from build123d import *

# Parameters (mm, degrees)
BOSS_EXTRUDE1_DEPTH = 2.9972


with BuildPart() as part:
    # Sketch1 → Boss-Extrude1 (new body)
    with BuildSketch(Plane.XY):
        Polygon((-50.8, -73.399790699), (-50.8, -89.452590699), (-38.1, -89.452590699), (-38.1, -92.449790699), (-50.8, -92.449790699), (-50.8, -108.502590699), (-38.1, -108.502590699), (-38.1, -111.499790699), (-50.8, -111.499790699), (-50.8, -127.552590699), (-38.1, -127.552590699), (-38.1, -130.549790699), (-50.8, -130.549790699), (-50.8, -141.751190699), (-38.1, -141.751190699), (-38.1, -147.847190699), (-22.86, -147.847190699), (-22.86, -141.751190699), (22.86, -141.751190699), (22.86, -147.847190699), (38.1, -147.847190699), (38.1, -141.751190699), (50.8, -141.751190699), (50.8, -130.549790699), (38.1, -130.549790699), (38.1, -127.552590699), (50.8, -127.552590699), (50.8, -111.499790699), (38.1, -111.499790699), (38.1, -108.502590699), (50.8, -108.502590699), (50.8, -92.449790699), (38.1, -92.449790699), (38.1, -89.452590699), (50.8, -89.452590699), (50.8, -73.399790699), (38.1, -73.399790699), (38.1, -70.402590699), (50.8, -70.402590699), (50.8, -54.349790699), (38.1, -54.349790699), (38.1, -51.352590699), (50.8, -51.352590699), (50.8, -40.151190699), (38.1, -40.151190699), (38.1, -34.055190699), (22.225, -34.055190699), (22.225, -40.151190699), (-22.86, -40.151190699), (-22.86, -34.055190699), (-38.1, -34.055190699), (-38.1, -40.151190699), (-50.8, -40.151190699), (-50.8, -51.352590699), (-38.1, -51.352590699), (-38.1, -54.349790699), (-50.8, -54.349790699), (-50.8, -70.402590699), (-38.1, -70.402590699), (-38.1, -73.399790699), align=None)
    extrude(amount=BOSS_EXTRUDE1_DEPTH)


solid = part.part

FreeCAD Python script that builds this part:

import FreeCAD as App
import Part
import Sketcher
from FreeCAD import Vector
Q = App.Units.Quantity


def add_polygon(sketch, points):
    """Adds a closed chain of lines whose ends are joined by coincident constraints."""
    first, n = sketch.GeometryCount, len(points)
    for a, b in zip(points, points[1:] + points[:1]):
        sketch.addGeometry(Part.LineSegment(App.Vector(*a, 0), App.Vector(*b, 0)), False)
    for i in range(n):
        sketch.addConstraint(Sketcher.Constraint("Coincident", first + i, 2, first + (i + 1) % n, 1))

doc = App.newDocument("Part")
body = doc.addObject("PartDesign::Body", "Body")

sketch1 = doc.addObject("Sketcher::SketchObject", "Sketch")
body.addObject(sketch1)
sketch1.AttachmentSupport = (doc.XY_Plane, [""])
sketch1.MapMode = "FlatFace"
add_polygon(sketch1, [(-50.8, -73.399791), (-50.8, -89.452591), (-38.1, -89.452591), (-38.1, -92.449791), (-50.8, -92.449791), (-50.8, -108.502591), (-38.1, -108.502591), (-38.1, -111.499791), (-50.8, -111.499791), (-50.8, -127.552591), (-38.1, -127.552591), (-38.1, -130.549791), (-50.8, -130.549791), (-50.8, -141.751191), (-38.1, -141.751191), (-38.1, -147.847191), (-22.86, -147.847191), (-22.86, -141.751191), (22.86, -141.751191), (22.86, -147.847191), (38.1, -147.847191), (38.1, -141.751191), (50.8, -141.751191), (50.8, -130.549791), (38.1, -130.549791), (38.1, -127.552591), (50.8, -127.552591), (50.8, -111.499791), (38.1, -111.499791), (38.1, -108.502591), (50.8, -108.502591), (50.8, -92.449791), (38.1, -92.449791), (38.1, -89.452591), (50.8, -89.452591), (50.8, -73.399791), (38.1, -73.399791), (38.1, -70.402591), (50.8, -70.402591), (50.8, -54.349791), (38.1, -54.349791), (38.1, -51.352591), (50.8, -51.352591), (50.8, -40.151191), (38.1, -40.151191), (38.1, -34.055191), (22.225, -34.055191), (22.225, -40.151191), (-22.86, -40.151191), (-22.86, -34.055191), (-38.1, -34.055191), (-38.1, -40.151191), (-50.8, -40.151191), (-50.8, -51.352591), (-38.1, -51.352591), (-38.1, -54.349791), (-50.8, -54.349791), (-50.8, -70.402591), (-38.1, -70.402591), (-38.1, -73.399791)])
sketch1.addConstraint(Sketcher.Constraint("Vertical", 0))
sketch1.addConstraint(Sketcher.Constraint("Horizontal", 1))
sketch1.addConstraint(Sketcher.Constraint("Vertical", 2))
sketch1.addConstraint(Sketcher.Constraint("Horizontal", 3))
sketch1.addConstraint(Sketcher.Constraint("Vertical", 4))
sketch1.addConstraint(Sketcher.Constraint("Horizontal", 5))
sketch1.addConstraint(Sketcher.Constraint("Vertical", 6))
sketch1.addConstraint(Sketcher.Constraint("Horizontal", 7))
sketch1.addConstraint(Sketcher.Constraint("Vertical", 8))
sketch1.addConstraint(Sketcher.Constraint("Horizontal", 9))
sketch1.addConstraint(Sketcher.Constraint("Vertical", 10))
sketch1.addConstraint(Sketcher.Constraint("Horizontal", 11))
sketch1.addConstraint(Sketcher.Constraint("Vertical", 12))
sketch1.addConstraint(Sketcher.Constraint("Horizontal", 13))
sketch1.addConstraint(Sketcher.Constraint("Vertical", 14))
sketch1.addConstraint(Sketcher.Constraint("Horizontal", 15))
sketch1.addConstraint(Sketcher.Constraint("Vertical", 16))
sketch1.addConstraint(Sketcher.Constraint("Horizontal", 17))
sketch1.addConstraint(Sketcher.Constraint("Vertical", 18))
sketch1.addConstraint(Sketcher.Constraint("Horizontal", 19))
sketch1.addConstraint(Sketcher.Constraint("Vertical", 20))
sketch1.addConstraint(Sketcher.Constraint("Horizontal", 21))
sketch1.addConstraint(Sketcher.Constraint("Vertical", 22))
sketch1.addConstraint(Sketcher.Constraint("Horizontal", 23))
sketch1.addConstraint(Sketcher.Constraint("Vertical", 24))
sketch1.addConstraint(Sketcher.Constraint("Horizontal", 25))
sketch1.addConstraint(Sketcher.Constraint("Vertical", 26))
sketch1.addConstraint(Sketcher.Constraint("Horizontal", 27))
sketch1.addConstraint(Sketcher.Constraint("Vertical", 28))
sketch1.addConstraint(Sketcher.Constraint("Horizontal", 29))
sketch1.addConstraint(Sketcher.Constraint("Vertical", 30))
sketch1.addConstraint(Sketcher.Constraint("Horizontal", 31))
sketch1.addConstraint(Sketcher.Constraint("Vertical", 32))
sketch1.addConstraint(Sketcher.Constraint("Horizontal", 33))
sketch1.addConstraint(Sketcher.Constraint("Vertical", 34))
sketch1.addConstraint(Sketcher.Constraint("Horizontal", 35))
sketch1.addConstraint(Sketcher.Constraint("Vertical", 36))
sketch1.addConstraint(Sketcher.Constraint("Horizontal", 37))
sketch1.addConstraint(Sketcher.Constraint("Vertical", 38))
sketch1.addConstraint(Sketcher.Constraint("Horizontal", 39))
sketch1.addConstraint(Sketcher.Constraint("Vertical", 40))
sketch1.addConstraint(Sketcher.Constraint("Horizontal", 41))
sketch1.addConstraint(Sketcher.Constraint("Vertical", 42))
sketch1.addConstraint(Sketcher.Constraint("Horizontal", 43))
sketch1.addConstraint(Sketcher.Constraint("Vertical", 44))
sketch1.addConstraint(Sketcher.Constraint("Horizontal", 45))
sketch1.addConstraint(Sketcher.Constraint("Vertical", 46))
sketch1.addConstraint(Sketcher.Constraint("Horizontal", 47))
sketch1.addConstraint(Sketcher.Constraint("Vertical", 48))
sketch1.addConstraint(Sketcher.Constraint("Horizontal", 49))
sketch1.addConstraint(Sketcher.Constraint("Vertical", 50))
sketch1.addConstraint(Sketcher.Constraint("Horizontal", 51))
sketch1.addConstraint(Sketcher.Constraint("Vertical", 52))
sketch1.addConstraint(Sketcher.Constraint("Horizontal", 53))
sketch1.addConstraint(Sketcher.Constraint("Vertical", 54))
sketch1.addConstraint(Sketcher.Constraint("Horizontal", 55))
sketch1.addConstraint(Sketcher.Constraint("Vertical", 56))
sketch1.addConstraint(Sketcher.Constraint("Horizontal", 57))
sketch1.addConstraint(Sketcher.Constraint("Vertical", 58))
sketch1.addConstraint(Sketcher.Constraint("Horizontal", 59))
sketch1.addConstraint(Sketcher.Constraint("Symmetric", 15, 2, 18, 2, -2))
sketch1.addConstraint(Sketcher.Constraint("Symmetric", 13, 2, 20, 2, -2))
sketch1.addConstraint(Sketcher.Constraint("Symmetric", 11, 2, 22, 2, -2))
sketch1.addConstraint(Sketcher.Constraint("Symmetric", 9, 2, 24, 2, -2))
sketch1.addConstraint(Sketcher.Constraint("Symmetric", 7, 2, 26, 2, -2))
sketch1.addConstraint(Sketcher.Constraint("Symmetric", 5, 2, 28, 2, -2))
sketch1.addConstraint(Sketcher.Constraint("Symmetric", 3, 2, 30, 2, -2))
sketch1.addConstraint(Sketcher.Constraint("Symmetric", 1, 2, 32, 2, -2))
sketch1.addConstraint(Sketcher.Constraint("Symmetric", 44, 2, 49, 2, -2))
sketch1.addConstraint(Sketcher.Constraint("Symmetric", 42, 2, 51, 2, -2))
sketch1.addConstraint(Sketcher.Constraint("Symmetric", 40, 2, 53, 2, -2))
sketch1.addConstraint(Sketcher.Constraint("Symmetric", 38, 2, 55, 2, -2))
sketch1.addConstraint(Sketcher.Constraint("Symmetric", 36, 2, 57, 2, -2))
sketch1.addConstraint(Sketcher.Constraint("Symmetric", 34, 2, 59, 2, -2))
sketch1.addConstraint(Sketcher.Constraint("Horizontal", 13, 2, 16, 2))
sketch1.addConstraint(Sketcher.Constraint("Horizontal", 43, 2, 46, 2))
sketch1.addConstraint(Sketcher.Constraint("Vertical", 0, 2, 3, 2))
sketch1.addConstraint(Sketcher.Constraint("Vertical", 2, 2, 5, 2))
sketch1.addConstraint(Sketcher.Constraint("Vertical", 4, 2, 7, 2))
sketch1.addConstraint(Sketcher.Constraint("Vertical", 6, 2, 9, 2))
sketch1.addConstraint(Sketcher.Constraint("Vertical", 8, 2, 11, 2))
sketch1.addConstraint(Sketcher.Constraint("Vertical", 10, 2, 13, 2))
sketch1.addConstraint(Sketcher.Constraint("Vertical", 32, 2, 35, 2))
sketch1.addConstraint(Sketcher.Constraint("Vertical", 34, 2, 37, 2))
sketch1.addConstraint(Sketcher.Constraint("Vertical", 36, 2, 39, 2))
sketch1.addConstraint(Sketcher.Constraint("Vertical", 38, 2, 41, 2))
sketch1.addConstraint(Sketcher.Constraint("Vertical", 40, 2, 43, 2))
sketch1.addConstraint(Sketcher.Constraint("Vertical", 16, 2, 47, 2))
sketch1.addConstraint(Sketcher.Constraint("Equal", 0, 4))
sketch1.addConstraint(Sketcher.Constraint("Equal", 2, 6))
sketch1.addConstraint(Sketcher.Constraint("Equal", 4, 8))
sketch1.addConstraint(Sketcher.Constraint("Equal", 6, 10))
sketch1.addConstraint(Sketcher.Constraint("Equal", 32, 36))
sketch1.addConstraint(Sketcher.Constraint("Equal", 34, 38))
sketch1.addConstraint(Sketcher.Constraint("Equal", 36, 40))
sketch1.addConstraint(Sketcher.Constraint("Equal", 22, 42))
sketch1.addConstraint(Sketcher.Constraint("Equal", 20, 44))
sketch1.addConstraint(Sketcher.Constraint("DistanceX", 1, 1, 1, 2, Q("0.5 in")))
sketch1.addConstraint(Sketcher.Constraint("DistanceX", 15, 1, 15, 2, Q("0.6 in")))
sketch1.addConstraint(Sketcher.Constraint("DistanceX", 17, 1, 17, 2, Q("1.8 in")))
sketch1.addConstraint(Sketcher.Constraint("DistanceY", 14, 2, 14, 1, Q("0.24 in")))
sketch1.addConstraint(Sketcher.Constraint("DistanceX", 45, 2, 45, 1, Q("0.625 in")))
sketch1.addConstraint(Sketcher.Constraint("DistanceY", 0, 2, 0, 1, Q("0.632 in")))
sketch1.addConstraint(Sketcher.Constraint("DistanceY", 2, 2, 2, 1, Q("0.118 in")))
sketch1.addConstraint(Sketcher.Constraint("DistanceY", 12, 2, 12, 1, Q("0.441 in")))
sketch1.addConstraint(Sketcher.Constraint("DistanceY", 0, 2, -1, 1, Q("89.452591 mm")))
pad1 = doc.addObject("PartDesign::Pad", "Pad")
body.addObject(pad1)
pad1.Profile = sketch1
pad1.Length = Q("0.118 in")

doc.recompute()
